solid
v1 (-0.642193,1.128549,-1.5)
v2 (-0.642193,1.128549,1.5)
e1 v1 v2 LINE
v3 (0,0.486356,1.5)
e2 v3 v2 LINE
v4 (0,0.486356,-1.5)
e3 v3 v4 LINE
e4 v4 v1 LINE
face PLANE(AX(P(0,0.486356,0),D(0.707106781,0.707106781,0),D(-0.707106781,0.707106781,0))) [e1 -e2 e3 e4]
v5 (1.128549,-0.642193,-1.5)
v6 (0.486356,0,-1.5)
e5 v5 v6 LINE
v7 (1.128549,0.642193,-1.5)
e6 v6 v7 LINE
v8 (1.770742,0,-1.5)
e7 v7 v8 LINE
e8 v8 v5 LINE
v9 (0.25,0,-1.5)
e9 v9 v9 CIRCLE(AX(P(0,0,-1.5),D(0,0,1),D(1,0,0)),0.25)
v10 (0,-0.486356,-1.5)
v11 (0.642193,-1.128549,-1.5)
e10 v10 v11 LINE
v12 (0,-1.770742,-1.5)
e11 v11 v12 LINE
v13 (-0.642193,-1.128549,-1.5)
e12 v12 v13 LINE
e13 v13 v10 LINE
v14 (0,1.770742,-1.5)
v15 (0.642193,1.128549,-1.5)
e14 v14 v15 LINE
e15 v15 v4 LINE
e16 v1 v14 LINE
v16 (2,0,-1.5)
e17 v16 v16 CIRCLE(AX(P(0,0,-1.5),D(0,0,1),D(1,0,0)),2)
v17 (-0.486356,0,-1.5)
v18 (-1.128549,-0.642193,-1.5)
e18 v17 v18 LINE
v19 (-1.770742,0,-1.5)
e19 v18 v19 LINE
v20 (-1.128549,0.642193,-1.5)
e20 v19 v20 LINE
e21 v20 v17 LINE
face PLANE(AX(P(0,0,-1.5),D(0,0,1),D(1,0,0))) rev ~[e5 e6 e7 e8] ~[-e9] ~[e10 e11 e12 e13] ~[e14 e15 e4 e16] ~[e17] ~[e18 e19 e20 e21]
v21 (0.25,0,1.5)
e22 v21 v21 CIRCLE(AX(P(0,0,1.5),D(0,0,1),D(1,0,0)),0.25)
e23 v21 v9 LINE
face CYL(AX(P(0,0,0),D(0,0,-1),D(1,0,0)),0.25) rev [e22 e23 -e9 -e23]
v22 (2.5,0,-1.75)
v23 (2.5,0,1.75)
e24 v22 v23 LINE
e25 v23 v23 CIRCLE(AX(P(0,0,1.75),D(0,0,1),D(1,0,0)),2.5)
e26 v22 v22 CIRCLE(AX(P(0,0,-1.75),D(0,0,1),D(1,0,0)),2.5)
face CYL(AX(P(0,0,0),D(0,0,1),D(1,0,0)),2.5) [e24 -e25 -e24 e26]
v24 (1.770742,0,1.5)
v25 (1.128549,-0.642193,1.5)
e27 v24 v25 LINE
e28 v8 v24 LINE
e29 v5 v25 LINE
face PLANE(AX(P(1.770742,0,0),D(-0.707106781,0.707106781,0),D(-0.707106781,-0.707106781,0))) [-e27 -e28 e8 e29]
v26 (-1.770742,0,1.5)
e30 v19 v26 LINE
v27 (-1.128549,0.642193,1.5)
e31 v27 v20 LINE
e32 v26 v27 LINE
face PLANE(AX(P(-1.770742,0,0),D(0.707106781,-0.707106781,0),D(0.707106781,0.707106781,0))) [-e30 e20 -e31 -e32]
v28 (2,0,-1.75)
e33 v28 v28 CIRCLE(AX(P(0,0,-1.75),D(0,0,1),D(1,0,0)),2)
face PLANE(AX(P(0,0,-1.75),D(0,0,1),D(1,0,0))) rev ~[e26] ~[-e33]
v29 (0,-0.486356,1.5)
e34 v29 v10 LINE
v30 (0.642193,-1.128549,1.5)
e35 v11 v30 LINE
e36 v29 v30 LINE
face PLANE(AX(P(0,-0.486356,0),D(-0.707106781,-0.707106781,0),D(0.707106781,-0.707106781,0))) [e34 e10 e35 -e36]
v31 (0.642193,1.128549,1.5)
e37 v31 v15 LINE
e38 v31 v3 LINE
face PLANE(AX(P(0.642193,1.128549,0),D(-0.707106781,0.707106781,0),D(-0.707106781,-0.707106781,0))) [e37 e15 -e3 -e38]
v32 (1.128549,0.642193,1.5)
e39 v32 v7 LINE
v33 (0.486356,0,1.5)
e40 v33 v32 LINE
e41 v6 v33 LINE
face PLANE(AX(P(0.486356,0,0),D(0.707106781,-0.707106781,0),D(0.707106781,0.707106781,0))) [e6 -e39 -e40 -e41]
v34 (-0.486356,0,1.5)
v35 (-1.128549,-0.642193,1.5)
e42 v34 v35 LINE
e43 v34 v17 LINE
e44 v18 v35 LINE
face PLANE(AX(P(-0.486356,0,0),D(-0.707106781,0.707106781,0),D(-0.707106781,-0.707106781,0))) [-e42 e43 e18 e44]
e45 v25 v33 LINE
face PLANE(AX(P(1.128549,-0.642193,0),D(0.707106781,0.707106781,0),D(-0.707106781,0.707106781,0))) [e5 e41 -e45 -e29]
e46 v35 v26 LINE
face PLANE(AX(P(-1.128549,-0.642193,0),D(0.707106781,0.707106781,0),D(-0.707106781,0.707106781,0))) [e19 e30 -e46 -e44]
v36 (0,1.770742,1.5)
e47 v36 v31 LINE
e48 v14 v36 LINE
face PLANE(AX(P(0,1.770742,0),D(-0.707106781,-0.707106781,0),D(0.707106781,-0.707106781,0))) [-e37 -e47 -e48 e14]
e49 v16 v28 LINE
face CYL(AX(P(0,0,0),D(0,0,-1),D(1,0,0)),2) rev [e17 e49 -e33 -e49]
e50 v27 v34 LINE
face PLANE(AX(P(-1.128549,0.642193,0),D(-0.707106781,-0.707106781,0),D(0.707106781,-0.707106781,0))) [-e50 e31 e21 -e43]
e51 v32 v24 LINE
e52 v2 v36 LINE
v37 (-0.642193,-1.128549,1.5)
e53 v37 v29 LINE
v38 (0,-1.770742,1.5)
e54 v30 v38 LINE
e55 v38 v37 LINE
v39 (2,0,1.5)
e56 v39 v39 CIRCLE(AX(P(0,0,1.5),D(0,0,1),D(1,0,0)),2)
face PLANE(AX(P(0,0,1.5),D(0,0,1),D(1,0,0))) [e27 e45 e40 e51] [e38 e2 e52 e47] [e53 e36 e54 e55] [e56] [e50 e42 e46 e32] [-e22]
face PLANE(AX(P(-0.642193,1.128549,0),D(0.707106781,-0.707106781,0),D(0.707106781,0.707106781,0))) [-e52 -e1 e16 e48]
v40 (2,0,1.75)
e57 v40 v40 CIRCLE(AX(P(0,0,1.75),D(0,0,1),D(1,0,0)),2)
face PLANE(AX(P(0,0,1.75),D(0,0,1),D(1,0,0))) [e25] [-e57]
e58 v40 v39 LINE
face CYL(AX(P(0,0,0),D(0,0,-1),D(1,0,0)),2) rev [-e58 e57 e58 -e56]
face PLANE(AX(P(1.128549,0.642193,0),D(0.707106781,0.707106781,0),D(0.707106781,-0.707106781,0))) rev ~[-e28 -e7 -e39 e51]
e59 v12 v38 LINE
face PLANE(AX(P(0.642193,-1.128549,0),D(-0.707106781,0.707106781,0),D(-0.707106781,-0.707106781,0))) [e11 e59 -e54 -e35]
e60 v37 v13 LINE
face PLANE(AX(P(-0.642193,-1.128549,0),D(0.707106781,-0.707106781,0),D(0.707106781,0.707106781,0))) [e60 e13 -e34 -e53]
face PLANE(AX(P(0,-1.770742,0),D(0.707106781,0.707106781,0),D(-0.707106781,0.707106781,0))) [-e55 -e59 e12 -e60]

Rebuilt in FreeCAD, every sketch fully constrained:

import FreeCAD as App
import Part
import Sketcher

V = App.Vector

doc = App.newDocument("Part")
body = doc.addObject("PartDesign::Body", "Body")

# Sketch on XY plane
sketch1 = body.newObject("Sketcher::SketchObject", "Sketch")
sketch1.AttachmentSupport = (doc.getObject("XY_Plane"), [""])
sketch1.MapMode = "FlatFace"
sketch1.addGeometry(Part.Circle(V(0, 0, 0), V(0, 0, 1), 2), False)
sketch1.addGeometry(Part.LineSegment(V(0, -0.49, 0), V(0.64, -1.13, 0)), False)
sketch1.addGeometry(Part.LineSegment(V(0.64, -1.13, 0), V(0, -1.77, 0)), False)
sketch1.addGeometry(Part.LineSegment(V(0, -1.77, 0), V(-0.64, -1.13, 0)), False)
sketch1.addGeometry(Part.LineSegment(V(-0.64, -1.13, 0), V(0, -0.49, 0)), False)
sketch1.addGeometry(Part.LineSegment(V(-0.49, 0, 0), V(-1.13, -0.64, 0)), False)
sketch1.addGeometry(Part.LineSegment(V(-1.13, -0.64, 0), V(-1.77, 0, 0)), False)
sketch1.addGeometry(Part.LineSegment(V(-1.77, 0, 0), V(-1.13, 0.64, 0)), False)
sketch1.addGeometry(Part.LineSegment(V(-1.13, 0.64, 0), V(-0.49, 0, 0)), False)
sketch1.addGeometry(Part.LineSegment(V(0, 0.49, 0), V(-0.64, 1.13, 0)), False)
sketch1.addGeometry(Part.LineSegment(V(-0.64, 1.13, 0), V(0, 1.77, 0)), False)
sketch1.addGeometry(Part.LineSegment(V(0, 1.77, 0), V(0.64, 1.13, 0)), False)
sketch1.addGeometry(Part.LineSegment(V(0.64, 1.13, 0), V(0, 0.49, 0)), False)
sketch1.addGeometry(Part.Circle(V(0, 0, 0), V(0, 0, 1), 0.25), False)
sketch1.addGeometry(Part.LineSegment(V(0.49, 0, 0), V(1.13, 0.64, 0)), False)
sketch1.addGeometry(Part.LineSegment(V(1.13, 0.64, 0), V(1.77, 0, 0)), False)
sketch1.addGeometry(Part.LineSegment(V(1.77, 0, 0), V(1.13, -0.64, 0)), False)
sketch1.addGeometry(Part.LineSegment(V(1.13, -0.64, 0), V(0.49, 0, 0)), False)
sketch1.addConstraint(Sketcher.Constraint("Coincident", 1, 2, 2, 1))
sketch1.addConstraint(Sketcher.Constraint("Coincident", 2, 2, 3, 1))
sketch1.addConstraint(Sketcher.Constraint("Coincident", 3, 2, 4, 1))
sketch1.addConstraint(Sketcher.Constraint("Coincident", 4, 2, 1, 1))
sketch1.addConstraint(Sketcher.Constraint("Coincident", 5, 2, 6, 1))
sketch1.addConstraint(Sketcher.Constraint("Coincident", 6, 2, 7, 1))
sketch1.addConstraint(Sketcher.Constraint("Coincident", 7, 2, 8, 1))
sketch1.addConstraint(Sketcher.Constraint("Coincident", 8, 2, 5, 1))
sketch1.addConstraint(Sketcher.Constraint("Coincident", 9, 2, 10, 1))
sketch1.addConstraint(Sketcher.Constraint("Coincident", 10, 2, 11, 1))
sketch1.addConstraint(Sketcher.Constraint("Coincident", 11, 2, 12, 1))
sketch1.addConstraint(Sketcher.Constraint("Coincident", 12, 2, 9, 1))
sketch1.addConstraint(Sketcher.Constraint("Coincident", 14, 2, 15, 1))
sketch1.addConstraint(Sketcher.Constraint("Coincident", 15, 2, 16, 1))
sketch1.addConstraint(Sketcher.Constraint("Coincident", 16, 2, 17, 1))
sketch1.addConstraint(Sketcher.Constraint("Coincident", 17, 2, 14, 1))
sketch1.addConstraint(Sketcher.Constraint("Coincident", 0, 3, -1, 1))
sketch1.addConstraint(Sketcher.Constraint("Coincident", 13, 3, -1, 1))
sketch1.addConstraint(Sketcher.Constraint("Symmetric", 1, 2, 9, 2, -1, 1))
sketch1.addConstraint(Sketcher.Constraint("Symmetric", 2, 2, 10, 2, -1, 1))
sketch1.addConstraint(Sketcher.Constraint("Symmetric", 3, 2, 11, 2, -1, 1))
sketch1.addConstraint(Sketcher.Constraint("Symmetric", 4, 2, 12, 2, -1, 1))
sketch1.addConstraint(Sketcher.Constraint("Symmetric", 5, 2, 14, 2, -1, 1))
sketch1.addConstraint(Sketcher.Constraint("Symmetric", 6, 2, 15, 2, -1, 1))
sketch1.addConstraint(Sketcher.Constraint("Symmetric", 7, 2, 16, 2, -1, 1))
sketch1.addConstraint(Sketcher.Constraint("Symmetric", 8, 2, 17, 2, -1, 1))
sketch1.addConstraint(Sketcher.Constraint("Symmetric", 1, 2, 3, 2, -2))
sketch1.addConstraint(Sketcher.Constraint("Symmetric", 7, 2, 14, 2, -2))
sketch1.addConstraint(Sketcher.Constraint("PointOnObject", 2, 2, -2))
sketch1.addConstraint(Sketcher.Constraint("PointOnObject", 4, 2, -2))
sketch1.addConstraint(Sketcher.Constraint("PointOnObject", 6, 2, -1))
sketch1.addConstraint(Sketcher.Constraint("PointOnObject", 8, 2, -1))
sketch1.addConstraint(Sketcher.Constraint("Perpendicular", 1, 2))
sketch1.addConstraint(Sketcher.Constraint("Perpendicular", 2, 3))
sketch1.addConstraint(Sketcher.Constraint("Parallel", 4, 5))
sketch1.addConstraint(Sketcher.Constraint("Perpendicular", 5, 6))
sketch1.addConstraint(Sketcher.Constraint("Equal", 4, 5))
sketch1.addConstraint(Sketcher.Constraint("Diameter", 0, 4.0))
sketch1.addConstraint(Sketcher.Constraint("Diameter", 13, 0.5))
sketch1.addConstraint(Sketcher.Constraint("Distance", 1, 0.908198))
sketch1.addConstraint(Sketcher.Constraint("DistanceY", 1, 2, -1, 1, 1.128549))
sketch1.addConstraint(Sketcher.Constraint("DistanceX", 5, 2, -1, 1, 1.128549))
pad1 = body.newObject("PartDesign::Pad", "Pad")
pad1.Profile = sketch1
pad1.Length = 3
pad1.Midplane = True

# Sketch on XY plane
sketch2 = body.newObject("Sketcher::SketchObject", "Sketch001")
sketch2.AttachmentSupport = (doc.getObject("XY_Plane"), [""])
sketch2.MapMode = "FlatFace"
sketch2.addGeometry(Part.Circle(V(0, 0, 0), V(0, 0, 1), 2.5), False)
sketch2.addGeometry(Part.Circle(V(0, 0, 0), V(0, 0, 1), 2), False)
sketch2.addConstraint(Sketcher.Constraint("Coincident", 0, 3, -1, 1))
sketch2.addConstraint(Sketcher.Constraint("Coincident", 1, 3, -1, 1))
sketch2.addConstraint(Sketcher.Constraint("Diameter", 0, 5.0))
sketch2.addConstraint(Sketcher.Constraint("Diameter", 1, 4.0))
pad2 = body.newObject("PartDesign::Pad", "Pad001")
pad2.Profile = sketch2
pad2.Length = 3.5
pad2.Midplane = True

doc.recompute()
